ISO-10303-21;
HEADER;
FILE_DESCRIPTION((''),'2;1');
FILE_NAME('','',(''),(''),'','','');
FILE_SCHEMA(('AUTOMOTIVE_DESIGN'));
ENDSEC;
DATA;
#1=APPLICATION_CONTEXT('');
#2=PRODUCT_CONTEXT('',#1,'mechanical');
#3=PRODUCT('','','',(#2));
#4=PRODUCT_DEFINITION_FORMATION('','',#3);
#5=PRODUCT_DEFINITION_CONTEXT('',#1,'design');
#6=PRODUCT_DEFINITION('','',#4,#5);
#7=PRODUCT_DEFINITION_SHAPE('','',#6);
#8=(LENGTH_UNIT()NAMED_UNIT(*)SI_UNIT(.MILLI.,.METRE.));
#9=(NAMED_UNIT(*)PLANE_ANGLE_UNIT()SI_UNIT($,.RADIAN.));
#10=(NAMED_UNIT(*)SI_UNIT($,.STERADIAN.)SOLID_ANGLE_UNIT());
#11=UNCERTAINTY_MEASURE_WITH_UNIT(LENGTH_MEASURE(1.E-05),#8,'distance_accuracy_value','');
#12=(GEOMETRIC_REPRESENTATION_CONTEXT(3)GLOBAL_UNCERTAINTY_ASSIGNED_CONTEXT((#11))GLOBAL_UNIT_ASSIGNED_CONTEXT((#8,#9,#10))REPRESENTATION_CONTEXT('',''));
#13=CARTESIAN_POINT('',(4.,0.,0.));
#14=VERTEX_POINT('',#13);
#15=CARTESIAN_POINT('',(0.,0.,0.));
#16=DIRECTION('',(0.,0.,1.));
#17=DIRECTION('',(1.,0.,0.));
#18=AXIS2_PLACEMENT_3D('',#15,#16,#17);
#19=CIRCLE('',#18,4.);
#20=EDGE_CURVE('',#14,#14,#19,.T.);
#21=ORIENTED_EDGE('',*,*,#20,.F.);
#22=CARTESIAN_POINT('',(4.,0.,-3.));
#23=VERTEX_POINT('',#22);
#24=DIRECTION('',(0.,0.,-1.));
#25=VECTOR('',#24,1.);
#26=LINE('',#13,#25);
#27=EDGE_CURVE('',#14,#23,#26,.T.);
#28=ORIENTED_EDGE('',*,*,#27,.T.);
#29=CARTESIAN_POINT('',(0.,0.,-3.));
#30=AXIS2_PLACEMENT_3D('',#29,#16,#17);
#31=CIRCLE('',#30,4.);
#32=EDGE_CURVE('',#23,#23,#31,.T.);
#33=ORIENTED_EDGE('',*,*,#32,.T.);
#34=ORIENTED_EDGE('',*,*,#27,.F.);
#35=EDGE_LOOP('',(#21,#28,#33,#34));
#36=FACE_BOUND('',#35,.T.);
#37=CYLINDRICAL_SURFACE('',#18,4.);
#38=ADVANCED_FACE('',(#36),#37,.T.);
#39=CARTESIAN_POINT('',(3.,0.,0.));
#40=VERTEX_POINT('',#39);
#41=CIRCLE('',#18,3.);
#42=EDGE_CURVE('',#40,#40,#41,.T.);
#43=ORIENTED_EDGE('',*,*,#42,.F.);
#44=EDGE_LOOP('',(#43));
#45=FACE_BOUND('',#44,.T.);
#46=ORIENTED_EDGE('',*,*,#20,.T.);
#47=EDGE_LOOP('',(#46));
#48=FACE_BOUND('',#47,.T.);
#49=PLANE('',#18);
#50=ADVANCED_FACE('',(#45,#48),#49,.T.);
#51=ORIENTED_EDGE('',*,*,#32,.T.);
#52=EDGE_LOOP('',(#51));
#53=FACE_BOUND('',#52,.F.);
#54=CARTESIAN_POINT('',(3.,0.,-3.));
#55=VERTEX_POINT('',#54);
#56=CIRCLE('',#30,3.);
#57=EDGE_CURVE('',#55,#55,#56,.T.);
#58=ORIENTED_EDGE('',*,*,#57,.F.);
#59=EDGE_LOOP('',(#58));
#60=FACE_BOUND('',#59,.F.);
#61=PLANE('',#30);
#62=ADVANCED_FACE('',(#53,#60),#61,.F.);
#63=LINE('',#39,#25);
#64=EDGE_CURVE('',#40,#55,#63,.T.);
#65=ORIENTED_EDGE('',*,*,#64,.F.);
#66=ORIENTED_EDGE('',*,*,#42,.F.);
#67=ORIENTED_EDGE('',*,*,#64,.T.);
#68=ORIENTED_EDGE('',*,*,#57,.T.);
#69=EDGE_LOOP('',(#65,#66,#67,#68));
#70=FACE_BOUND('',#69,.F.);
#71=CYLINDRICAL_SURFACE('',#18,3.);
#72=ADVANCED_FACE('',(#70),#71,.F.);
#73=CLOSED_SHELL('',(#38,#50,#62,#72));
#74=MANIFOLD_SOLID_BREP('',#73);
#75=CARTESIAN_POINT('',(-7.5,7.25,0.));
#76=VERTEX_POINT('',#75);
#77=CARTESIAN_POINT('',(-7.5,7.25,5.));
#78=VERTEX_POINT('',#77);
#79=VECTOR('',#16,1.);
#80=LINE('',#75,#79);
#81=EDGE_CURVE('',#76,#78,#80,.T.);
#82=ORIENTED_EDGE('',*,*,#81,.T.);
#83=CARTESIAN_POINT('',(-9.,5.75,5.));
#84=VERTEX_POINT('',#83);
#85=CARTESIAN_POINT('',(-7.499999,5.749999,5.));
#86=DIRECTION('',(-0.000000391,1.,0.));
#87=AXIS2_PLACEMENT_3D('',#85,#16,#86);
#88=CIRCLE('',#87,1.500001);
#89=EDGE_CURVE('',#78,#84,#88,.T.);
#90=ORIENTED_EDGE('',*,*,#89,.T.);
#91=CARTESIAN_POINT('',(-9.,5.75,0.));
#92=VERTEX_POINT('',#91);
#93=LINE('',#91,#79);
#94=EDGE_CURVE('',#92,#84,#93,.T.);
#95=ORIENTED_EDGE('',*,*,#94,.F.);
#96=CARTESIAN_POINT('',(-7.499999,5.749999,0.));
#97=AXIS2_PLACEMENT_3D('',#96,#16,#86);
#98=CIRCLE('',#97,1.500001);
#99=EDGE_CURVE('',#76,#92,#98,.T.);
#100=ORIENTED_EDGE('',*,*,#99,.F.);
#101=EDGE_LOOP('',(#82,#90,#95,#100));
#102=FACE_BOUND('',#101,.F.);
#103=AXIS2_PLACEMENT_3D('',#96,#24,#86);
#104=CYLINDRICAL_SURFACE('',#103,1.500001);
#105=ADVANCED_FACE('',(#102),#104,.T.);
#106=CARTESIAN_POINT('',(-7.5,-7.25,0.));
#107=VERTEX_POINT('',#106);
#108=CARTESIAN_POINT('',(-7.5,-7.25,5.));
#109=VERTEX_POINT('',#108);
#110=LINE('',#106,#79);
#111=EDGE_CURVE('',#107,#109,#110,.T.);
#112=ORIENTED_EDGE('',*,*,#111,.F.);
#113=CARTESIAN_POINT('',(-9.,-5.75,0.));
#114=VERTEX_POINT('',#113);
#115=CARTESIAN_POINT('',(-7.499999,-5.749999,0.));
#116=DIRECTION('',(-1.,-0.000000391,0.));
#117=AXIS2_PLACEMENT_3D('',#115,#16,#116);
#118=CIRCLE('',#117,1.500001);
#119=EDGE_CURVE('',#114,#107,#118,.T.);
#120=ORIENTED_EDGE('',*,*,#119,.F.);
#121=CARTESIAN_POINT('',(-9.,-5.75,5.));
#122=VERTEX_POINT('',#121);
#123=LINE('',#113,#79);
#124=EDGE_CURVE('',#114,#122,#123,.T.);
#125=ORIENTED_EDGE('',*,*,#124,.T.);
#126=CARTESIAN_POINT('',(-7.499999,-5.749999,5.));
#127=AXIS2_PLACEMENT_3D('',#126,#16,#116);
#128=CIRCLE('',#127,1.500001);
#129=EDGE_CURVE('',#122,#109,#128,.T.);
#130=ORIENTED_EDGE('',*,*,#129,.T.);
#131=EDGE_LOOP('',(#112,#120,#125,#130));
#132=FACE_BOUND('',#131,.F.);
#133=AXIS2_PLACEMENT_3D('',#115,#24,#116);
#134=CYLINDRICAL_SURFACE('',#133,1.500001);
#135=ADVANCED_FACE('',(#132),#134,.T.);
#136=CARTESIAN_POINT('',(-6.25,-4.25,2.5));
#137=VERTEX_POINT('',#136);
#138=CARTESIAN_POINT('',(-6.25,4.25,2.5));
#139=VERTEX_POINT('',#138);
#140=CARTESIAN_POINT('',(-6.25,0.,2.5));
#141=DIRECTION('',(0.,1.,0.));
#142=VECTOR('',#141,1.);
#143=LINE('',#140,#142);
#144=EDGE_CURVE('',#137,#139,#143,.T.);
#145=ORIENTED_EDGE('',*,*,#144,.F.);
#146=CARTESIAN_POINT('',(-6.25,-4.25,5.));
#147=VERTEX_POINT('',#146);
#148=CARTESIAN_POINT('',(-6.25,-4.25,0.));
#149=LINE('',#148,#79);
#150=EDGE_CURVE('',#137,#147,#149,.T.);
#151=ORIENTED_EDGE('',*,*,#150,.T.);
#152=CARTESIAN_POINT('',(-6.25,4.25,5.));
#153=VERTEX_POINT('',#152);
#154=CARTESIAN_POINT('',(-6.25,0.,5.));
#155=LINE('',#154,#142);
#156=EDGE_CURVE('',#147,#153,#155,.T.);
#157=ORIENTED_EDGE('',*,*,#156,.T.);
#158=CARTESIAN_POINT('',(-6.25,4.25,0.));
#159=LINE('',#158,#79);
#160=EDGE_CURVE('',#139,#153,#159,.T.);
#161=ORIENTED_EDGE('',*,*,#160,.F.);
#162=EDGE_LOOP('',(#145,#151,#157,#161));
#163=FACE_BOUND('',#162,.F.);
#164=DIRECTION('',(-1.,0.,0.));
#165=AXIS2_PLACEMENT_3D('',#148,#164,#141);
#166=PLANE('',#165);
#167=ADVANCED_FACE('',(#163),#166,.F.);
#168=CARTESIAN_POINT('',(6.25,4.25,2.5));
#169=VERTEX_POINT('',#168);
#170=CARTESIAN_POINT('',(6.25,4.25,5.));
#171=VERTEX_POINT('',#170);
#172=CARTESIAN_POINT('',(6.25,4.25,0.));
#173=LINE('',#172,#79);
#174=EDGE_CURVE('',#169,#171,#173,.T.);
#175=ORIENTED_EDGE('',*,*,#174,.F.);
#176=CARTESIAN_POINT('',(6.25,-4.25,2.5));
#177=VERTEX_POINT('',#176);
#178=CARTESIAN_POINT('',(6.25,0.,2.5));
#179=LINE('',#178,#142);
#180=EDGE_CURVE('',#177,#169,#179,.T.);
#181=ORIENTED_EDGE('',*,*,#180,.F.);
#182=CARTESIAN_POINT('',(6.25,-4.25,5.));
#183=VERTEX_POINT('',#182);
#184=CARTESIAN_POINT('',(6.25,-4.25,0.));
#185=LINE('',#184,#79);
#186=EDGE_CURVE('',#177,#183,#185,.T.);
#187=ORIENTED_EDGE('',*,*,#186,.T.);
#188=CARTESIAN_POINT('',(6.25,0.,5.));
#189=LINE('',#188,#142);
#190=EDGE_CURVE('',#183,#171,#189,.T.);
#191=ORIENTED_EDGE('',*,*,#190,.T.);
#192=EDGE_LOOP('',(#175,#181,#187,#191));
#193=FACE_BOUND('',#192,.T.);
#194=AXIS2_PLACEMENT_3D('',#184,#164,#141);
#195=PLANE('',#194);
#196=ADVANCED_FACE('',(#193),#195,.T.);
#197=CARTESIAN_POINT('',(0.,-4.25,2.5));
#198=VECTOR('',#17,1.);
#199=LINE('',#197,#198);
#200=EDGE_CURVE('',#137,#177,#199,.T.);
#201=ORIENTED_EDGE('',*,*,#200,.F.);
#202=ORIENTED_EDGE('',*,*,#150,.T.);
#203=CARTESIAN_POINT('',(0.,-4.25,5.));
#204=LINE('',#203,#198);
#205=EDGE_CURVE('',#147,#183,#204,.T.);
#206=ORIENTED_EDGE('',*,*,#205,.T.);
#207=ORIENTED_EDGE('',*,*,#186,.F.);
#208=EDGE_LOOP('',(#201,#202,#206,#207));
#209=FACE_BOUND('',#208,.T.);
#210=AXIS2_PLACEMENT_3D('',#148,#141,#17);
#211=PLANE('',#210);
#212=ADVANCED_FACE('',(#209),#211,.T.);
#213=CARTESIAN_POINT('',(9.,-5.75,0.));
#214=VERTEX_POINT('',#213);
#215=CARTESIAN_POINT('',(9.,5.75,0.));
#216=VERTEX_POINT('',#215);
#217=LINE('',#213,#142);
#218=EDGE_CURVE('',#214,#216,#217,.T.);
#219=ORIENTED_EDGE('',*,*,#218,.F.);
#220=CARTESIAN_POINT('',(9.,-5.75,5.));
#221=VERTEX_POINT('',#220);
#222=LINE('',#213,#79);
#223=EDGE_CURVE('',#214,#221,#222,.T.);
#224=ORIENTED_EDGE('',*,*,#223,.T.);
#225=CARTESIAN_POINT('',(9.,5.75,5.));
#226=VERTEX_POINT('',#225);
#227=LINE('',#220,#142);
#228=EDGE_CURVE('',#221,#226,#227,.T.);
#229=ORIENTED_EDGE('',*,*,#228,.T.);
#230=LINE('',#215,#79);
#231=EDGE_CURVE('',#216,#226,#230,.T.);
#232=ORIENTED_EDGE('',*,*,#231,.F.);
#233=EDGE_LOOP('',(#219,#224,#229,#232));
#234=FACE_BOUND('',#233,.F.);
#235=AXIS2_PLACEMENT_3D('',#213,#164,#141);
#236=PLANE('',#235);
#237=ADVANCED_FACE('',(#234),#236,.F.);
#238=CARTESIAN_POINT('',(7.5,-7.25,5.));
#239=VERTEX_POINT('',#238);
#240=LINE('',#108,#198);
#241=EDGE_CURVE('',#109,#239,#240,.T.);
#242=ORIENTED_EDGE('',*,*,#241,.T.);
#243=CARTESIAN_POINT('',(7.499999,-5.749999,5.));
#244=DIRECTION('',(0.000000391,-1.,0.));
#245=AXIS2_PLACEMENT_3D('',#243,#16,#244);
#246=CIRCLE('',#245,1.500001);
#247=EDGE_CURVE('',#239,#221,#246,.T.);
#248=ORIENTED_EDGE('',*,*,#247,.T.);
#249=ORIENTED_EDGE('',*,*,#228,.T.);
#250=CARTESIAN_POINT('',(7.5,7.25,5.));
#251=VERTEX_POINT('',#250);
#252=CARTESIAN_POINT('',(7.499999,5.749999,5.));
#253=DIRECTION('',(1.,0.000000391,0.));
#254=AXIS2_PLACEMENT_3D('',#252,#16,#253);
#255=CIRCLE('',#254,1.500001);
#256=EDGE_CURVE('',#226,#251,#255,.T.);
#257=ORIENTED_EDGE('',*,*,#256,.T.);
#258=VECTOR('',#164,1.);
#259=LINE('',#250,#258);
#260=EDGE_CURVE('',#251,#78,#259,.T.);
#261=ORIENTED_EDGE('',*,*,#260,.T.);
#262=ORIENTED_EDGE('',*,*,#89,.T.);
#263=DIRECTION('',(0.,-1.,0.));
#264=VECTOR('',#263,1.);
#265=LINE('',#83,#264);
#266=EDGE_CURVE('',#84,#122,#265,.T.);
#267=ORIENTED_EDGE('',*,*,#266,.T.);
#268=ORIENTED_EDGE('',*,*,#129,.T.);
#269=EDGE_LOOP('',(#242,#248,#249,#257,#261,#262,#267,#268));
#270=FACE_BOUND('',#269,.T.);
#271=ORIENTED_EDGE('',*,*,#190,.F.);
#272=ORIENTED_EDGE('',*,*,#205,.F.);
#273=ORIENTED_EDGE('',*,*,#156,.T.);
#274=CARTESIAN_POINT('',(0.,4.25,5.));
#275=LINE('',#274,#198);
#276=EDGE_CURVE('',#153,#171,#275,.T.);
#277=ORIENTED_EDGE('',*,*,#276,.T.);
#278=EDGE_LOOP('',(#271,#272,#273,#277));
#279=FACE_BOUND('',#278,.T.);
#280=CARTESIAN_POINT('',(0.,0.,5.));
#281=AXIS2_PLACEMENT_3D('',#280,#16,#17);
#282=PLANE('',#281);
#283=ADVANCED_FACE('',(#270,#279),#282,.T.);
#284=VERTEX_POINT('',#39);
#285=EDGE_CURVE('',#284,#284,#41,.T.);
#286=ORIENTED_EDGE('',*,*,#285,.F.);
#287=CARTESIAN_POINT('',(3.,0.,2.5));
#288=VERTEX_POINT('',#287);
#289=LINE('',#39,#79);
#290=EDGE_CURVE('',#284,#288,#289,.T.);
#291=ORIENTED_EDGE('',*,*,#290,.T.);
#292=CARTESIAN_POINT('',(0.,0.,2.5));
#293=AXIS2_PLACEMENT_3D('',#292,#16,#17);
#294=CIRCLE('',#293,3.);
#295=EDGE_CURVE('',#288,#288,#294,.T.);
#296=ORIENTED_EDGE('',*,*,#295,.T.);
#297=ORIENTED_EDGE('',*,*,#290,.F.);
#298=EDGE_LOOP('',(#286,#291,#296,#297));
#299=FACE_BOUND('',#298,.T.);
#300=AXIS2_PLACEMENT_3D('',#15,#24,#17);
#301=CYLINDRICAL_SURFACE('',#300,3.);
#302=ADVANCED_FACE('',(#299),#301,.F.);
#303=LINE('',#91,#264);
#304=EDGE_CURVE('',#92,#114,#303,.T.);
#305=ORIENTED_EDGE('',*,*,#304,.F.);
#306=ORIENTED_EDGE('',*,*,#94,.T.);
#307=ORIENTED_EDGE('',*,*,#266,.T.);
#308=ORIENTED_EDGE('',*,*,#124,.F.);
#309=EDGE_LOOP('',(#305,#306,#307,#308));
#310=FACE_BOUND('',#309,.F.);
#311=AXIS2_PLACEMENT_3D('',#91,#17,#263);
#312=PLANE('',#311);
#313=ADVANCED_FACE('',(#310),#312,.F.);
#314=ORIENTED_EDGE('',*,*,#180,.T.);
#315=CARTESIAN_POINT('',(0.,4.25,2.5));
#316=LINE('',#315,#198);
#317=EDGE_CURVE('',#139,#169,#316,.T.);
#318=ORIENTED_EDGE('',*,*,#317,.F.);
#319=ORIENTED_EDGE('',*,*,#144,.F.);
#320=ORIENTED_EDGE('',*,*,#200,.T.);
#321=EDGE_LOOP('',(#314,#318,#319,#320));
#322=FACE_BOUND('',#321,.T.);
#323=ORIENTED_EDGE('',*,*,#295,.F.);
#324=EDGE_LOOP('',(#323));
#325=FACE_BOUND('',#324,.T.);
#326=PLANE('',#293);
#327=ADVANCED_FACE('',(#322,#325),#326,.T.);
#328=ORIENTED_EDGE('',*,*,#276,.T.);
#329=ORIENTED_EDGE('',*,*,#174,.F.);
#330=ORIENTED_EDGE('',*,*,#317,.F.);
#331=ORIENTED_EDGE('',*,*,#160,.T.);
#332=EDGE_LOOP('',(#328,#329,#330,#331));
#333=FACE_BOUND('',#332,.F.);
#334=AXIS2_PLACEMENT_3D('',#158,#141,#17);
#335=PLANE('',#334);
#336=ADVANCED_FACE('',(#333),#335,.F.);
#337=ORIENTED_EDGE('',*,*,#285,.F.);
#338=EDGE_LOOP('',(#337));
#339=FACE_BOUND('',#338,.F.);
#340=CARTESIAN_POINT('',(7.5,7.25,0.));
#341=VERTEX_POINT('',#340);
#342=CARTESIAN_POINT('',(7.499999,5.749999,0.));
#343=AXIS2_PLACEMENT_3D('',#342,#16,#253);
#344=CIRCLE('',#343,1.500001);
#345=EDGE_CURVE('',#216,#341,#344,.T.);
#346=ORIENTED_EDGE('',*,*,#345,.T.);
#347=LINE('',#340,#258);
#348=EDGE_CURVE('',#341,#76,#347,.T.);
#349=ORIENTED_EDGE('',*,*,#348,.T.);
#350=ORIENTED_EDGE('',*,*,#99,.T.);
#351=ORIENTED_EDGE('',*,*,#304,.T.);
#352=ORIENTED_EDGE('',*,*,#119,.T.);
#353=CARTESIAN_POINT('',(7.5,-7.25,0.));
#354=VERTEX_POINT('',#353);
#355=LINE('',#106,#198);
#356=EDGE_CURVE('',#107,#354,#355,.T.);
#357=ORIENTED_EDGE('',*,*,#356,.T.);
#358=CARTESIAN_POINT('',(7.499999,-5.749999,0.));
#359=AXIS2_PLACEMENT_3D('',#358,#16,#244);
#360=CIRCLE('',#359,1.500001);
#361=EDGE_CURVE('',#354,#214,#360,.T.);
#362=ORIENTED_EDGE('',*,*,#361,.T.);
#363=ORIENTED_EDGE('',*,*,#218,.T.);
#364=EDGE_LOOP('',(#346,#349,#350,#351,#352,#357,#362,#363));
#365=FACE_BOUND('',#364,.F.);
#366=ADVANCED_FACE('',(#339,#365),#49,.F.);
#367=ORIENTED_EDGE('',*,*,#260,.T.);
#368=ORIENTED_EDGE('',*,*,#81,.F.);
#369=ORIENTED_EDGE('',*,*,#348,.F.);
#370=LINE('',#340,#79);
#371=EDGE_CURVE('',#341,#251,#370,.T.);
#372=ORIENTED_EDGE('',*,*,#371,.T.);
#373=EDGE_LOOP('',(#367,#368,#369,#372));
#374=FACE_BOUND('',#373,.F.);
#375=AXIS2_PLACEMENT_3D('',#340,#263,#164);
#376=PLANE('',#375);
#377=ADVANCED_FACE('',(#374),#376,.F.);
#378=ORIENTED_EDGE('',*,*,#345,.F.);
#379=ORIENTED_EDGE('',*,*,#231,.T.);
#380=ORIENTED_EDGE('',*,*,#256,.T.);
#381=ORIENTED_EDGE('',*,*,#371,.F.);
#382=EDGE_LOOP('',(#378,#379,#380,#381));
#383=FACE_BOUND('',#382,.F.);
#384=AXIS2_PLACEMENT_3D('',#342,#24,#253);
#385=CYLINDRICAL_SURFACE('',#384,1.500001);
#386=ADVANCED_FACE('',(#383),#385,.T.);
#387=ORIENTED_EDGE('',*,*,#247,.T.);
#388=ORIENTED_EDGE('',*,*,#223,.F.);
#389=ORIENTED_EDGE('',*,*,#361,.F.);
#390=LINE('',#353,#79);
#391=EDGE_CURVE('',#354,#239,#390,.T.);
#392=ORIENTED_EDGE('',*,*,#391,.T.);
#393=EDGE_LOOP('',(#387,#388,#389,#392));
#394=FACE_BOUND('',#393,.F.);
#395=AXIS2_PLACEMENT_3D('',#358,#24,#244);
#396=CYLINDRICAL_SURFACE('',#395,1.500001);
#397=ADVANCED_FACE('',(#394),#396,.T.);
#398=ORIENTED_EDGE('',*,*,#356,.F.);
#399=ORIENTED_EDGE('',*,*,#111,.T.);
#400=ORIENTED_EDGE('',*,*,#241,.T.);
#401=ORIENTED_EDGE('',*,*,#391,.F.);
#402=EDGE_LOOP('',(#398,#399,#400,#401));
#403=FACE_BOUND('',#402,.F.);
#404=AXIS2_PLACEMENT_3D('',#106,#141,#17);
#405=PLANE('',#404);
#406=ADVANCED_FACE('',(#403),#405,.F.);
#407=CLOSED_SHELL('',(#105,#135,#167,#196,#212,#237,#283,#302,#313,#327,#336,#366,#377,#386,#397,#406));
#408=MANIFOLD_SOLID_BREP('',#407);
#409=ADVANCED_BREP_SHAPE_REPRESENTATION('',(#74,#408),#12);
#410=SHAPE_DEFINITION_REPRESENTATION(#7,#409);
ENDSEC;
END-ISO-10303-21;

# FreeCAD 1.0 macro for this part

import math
import FreeCAD as App
import Part
import Sketcher

doc = App.newDocument("Part")
body = doc.addObject("PartDesign::Body", "Body")

# Sketch on XY plane
sketch1 = doc.addObject("Sketcher::SketchObject", "Sketch")
body.addObject(sketch1)
sketch1.AttachmentSupport = (doc.XY_Plane, [""])
sketch1.MapMode = "FlatFace"
sketch1.addGeometry([
    Part.LineSegment(App.Vector(-6.25, 4.25, 0), App.Vector(-6.25, -4.25, 0)),  # 0
    Part.LineSegment(App.Vector(-6.25, -4.25, 0), App.Vector(6.25, -4.25, 0)),  # 1
    Part.LineSegment(App.Vector(6.25, -4.25, 0), App.Vector(6.25, 4.25, 0)),  # 2
    Part.LineSegment(App.Vector(6.25, 4.25, 0), App.Vector(-6.25, 4.25, 0)),  # 3
    Part.Circle(App.Vector(0, 0, 0), App.Vector(0, 0, 1), 3),  # 4
], False)
sketch1.addConstraint([
    Sketcher.Constraint("Coincident", 0, 2, 1, 1),
    Sketcher.Constraint("Coincident", 1, 2, 2, 1),
    Sketcher.Constraint("Coincident", 2, 2, 3, 1),
    Sketcher.Constraint("Coincident", 3, 2, 0, 1),
    Sketcher.Constraint("Vertical", 0),
    Sketcher.Constraint("Horizontal", 1),
    Sketcher.Constraint("Vertical", 2),
    Sketcher.Constraint("Horizontal", 3),
    Sketcher.Constraint("Coincident", 4, 3, -1, 1),
    Sketcher.Constraint("Symmetric", 0, 2, 2, 2, -1, 1),
    Sketcher.Constraint("Diameter", 4, 6.0),
    Sketcher.Constraint("DistanceX", 1, 1, 1, 2, 12.5),
    Sketcher.Constraint("DistanceY", 0, 2, 0, 1, 8.5),
])
pad1 = doc.addObject("PartDesign::Pad", "Pad")
body.addObject(pad1)
pad1.Profile = sketch1
pad1.Length = 2.5

# Sketch on XY plane
sketch2 = doc.addObject("Sketcher::SketchObject", "Sketch001")
body.addObject(sketch2)
sketch2.AttachmentSupport = (doc.XY_Plane, [""])
sketch2.MapMode = "FlatFace"
sketch2.addGeometry([
    Part.LineSegment(App.Vector(7.5, 7.25, 0), App.Vector(-7.5, 7.25, 0)),  # 0
    Part.ArcOfCircle(Part.Circle(App.Vector(-7.499999, 5.749999, 0), App.Vector(0, 0, 1), 1.500001), math.radians(90.000022), math.radians(179.999978)),  # 1
    Part.LineSegment(App.Vector(-9, 5.75, 0), App.Vector(-9, -5.75, 0)),  # 2
    Part.ArcOfCircle(Part.Circle(App.Vector(-7.499999, -5.749999, 0), App.Vector(0, 0, 1), 1.500001), math.radians(-179.999978), math.radians(-90.000022)),  # 3
    Part.LineSegment(App.Vector(-7.5, -7.25, 0), App.Vector(7.5, -7.25, 0)),  # 4
    Part.ArcOfCircle(Part.Circle(App.Vector(7.499999, -5.749999, 0), App.Vector(0, 0, 1), 1.500001), math.radians(-89.999978), math.radians(-0.000022)),  # 5
    Part.LineSegment(App.Vector(9, -5.75, 0), App.Vector(9, 5.75, 0)),  # 6
    Part.ArcOfCircle(Part.Circle(App.Vector(7.499999, 5.749999, 0), App.Vector(0, 0, 1), 1.500001), math.radians(0.000022), math.radians(89.999978)),  # 7
    Part.LineSegment(App.Vector(6.25, -4.25, 0), App.Vector(-6.25, -4.25, 0)),  # 8
    Part.LineSegment(App.Vector(-6.25, -4.25, 0), App.Vector(-6.25, 4.25, 0)),  # 9
    Part.LineSegment(App.Vector(-6.25, 4.25, 0), App.Vector(6.25, 4.25, 0)),  # 10
    Part.LineSegment(App.Vector(6.25, 4.25, 0), App.Vector(6.25, -4.25, 0)),  # 11
], False)
sketch2.addConstraint([
    Sketcher.Constraint("Tangent", 0, 2, 1, 1),
    Sketcher.Constraint("Tangent", 1, 2, 2, 1),
    Sketcher.Constraint("Tangent", 2, 2, 3, 1),
    Sketcher.Constraint("Tangent", 3, 2, 4, 1),
    Sketcher.Constraint("Tangent", 4, 2, 5, 1),
    Sketcher.Constraint("Tangent", 5, 2, 6, 1),
    Sketcher.Constraint("Tangent", 6, 2, 7, 1),
    Sketcher.Constraint("Tangent", 7, 2, 0, 1),
    Sketcher.Constraint("Coincident", 8, 2, 9, 1),
    Sketcher.Constraint("Coincident", 9, 2, 10, 1),
    Sketcher.Constraint("Coincident", 10, 2, 11, 1),
    Sketcher.Constraint("Coincident", 11, 2, 8, 1),
    Sketcher.Constraint("Horizontal", 0),
    Sketcher.Constraint("Vertical", 2),
    Sketcher.Constraint("Horizontal", 4),
    Sketcher.Constraint("Vertical", 6),
    Sketcher.Constraint("Horizontal", 8),
    Sketcher.Constraint("Vertical", 9),
    Sketcher.Constraint("Horizontal", 10),
    Sketcher.Constraint("Vertical", 11),
    Sketcher.Constraint("Equal", 1, 3),
    Sketcher.Constraint("Equal", 3, 5),
    Sketcher.Constraint("Equal", 5, 7),
    Sketcher.Constraint("Symmetric", 1, 3, 5, 3, -1, 1),
    Sketcher.Constraint("Symmetric", 8, 2, 10, 2, -1, 1),
    Sketcher.Constraint("Radius", 1, 1.500001),
    Sketcher.Constraint("DistanceX", 0, 2, 0, 1, 15.0),
    Sketcher.Constraint("DistanceX", 8, 2, 8, 1, 12.5),
    Sketcher.Constraint("DistanceY", 2, 2, 2, 1, 11.5),
    Sketcher.Constraint("DistanceY", 9, 1, 9, 2, 8.5),
])
pad2 = doc.addObject("PartDesign::Pad", "Pad001")
body.addObject(pad2)
pad2.Profile = sketch2
pad2.Length = 5
body2 = doc.addObject("PartDesign::Body", "Body001")

# Sketch on XY plane
sketch3 = doc.addObject("Sketcher::SketchObject", "Sketch002")
body2.addObject(sketch3)
sketch3.AttachmentSupport = (doc.getObject("XY_Plane001"), [""])
sketch3.MapMode = "FlatFace"
sketch3.addGeometry([
    Part.Circle(App.Vector(0, 0, 0), App.Vector(0, 0, 1), 4),
    Part.Circle(App.Vector(0, 0, 0), App.Vector(0, 0, 1), 3),
], False)
sketch3.addConstraint([
    Sketcher.Constraint("Coincident", 0, 3, -1, 1),
    Sketcher.Constraint("Coincident", 1, 3, -1, 1),
    Sketcher.Constraint("Diameter", 0, 8.0),
    Sketcher.Constraint("Diameter", 1, 6.0),
])
pad3 = doc.addObject("PartDesign::Pad", "Pad002")
body2.addObject(pad3)
pad3.Profile = sketch3
pad3.Length = 3
pad3.Reversed = True

doc.recompute()
